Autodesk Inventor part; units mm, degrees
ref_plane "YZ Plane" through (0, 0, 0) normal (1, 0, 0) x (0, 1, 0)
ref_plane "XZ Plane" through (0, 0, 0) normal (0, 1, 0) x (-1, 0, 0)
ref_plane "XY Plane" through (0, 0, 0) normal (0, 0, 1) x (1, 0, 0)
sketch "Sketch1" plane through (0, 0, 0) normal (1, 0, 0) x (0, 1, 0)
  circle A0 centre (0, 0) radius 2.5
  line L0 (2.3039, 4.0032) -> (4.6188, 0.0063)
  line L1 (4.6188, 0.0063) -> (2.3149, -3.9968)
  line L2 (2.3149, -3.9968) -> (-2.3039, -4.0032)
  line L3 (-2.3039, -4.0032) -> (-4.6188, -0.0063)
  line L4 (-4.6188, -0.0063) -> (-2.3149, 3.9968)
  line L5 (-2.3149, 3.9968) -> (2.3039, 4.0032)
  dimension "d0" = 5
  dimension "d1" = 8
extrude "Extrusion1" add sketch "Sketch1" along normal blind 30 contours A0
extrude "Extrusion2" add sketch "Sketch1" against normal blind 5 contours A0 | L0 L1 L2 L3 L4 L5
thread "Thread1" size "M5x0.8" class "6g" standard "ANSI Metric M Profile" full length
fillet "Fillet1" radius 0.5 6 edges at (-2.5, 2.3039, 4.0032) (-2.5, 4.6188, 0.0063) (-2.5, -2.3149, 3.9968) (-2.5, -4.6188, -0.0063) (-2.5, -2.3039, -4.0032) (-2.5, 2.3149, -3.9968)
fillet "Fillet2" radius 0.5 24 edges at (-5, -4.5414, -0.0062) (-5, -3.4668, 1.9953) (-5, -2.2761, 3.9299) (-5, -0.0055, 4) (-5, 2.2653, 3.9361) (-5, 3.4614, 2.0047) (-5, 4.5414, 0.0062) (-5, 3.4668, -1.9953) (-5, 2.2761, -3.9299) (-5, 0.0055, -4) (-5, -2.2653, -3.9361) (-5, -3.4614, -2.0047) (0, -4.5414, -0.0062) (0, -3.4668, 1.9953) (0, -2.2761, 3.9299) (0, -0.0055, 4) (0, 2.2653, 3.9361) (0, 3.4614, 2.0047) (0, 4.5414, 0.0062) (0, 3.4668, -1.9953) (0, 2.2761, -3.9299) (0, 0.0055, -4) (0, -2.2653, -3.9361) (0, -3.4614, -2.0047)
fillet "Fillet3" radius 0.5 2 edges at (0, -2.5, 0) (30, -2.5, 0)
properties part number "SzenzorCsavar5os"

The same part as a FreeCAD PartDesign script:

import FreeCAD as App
import Part
import Sketcher

V = App.Vector
Q = App.Units.Quantity


def edges_at(feature, points):
    """Names of the edges that pass closest to the given points."""
    edges = feature.Shape.Edges
    near = lambda p: min(range(len(edges)), key=lambda i: edges[i].distToShape(Part.Vertex(*p))[0])
    return sorted({f"Edge{near(p) + 1}" for p in points})


def add_polygon(sketch, points):
    """Adds a closed chain of lines whose ends are joined by coincident constraints."""
    first, n = sketch.GeometryCount, len(points)
    for a, b in zip(points, points[1:] + points[:1]):
        sketch.addGeometry(Part.LineSegment(App.Vector(*a, 0), App.Vector(*b, 0)), False)
    for i in range(n):
        sketch.addConstraint(Sketcher.Constraint("Coincident", first + i, 2, first + (i + 1) % n, 1))

doc = App.newDocument("Part")
body = doc.addObject("PartDesign::Body", "Body")

# Sketch on YZ plane
sketch1 = doc.addObject("Sketcher::SketchObject", "Sketch")
body.addObject(sketch1)
sketch1.AttachmentSupport = (doc.YZ_Plane, [""])
sketch1.MapMode = "FlatFace"
sketch1.addGeometry(Part.Circle(V(0, 0, 0), V(0, 0, 1), 2.5), False)
sketch1.addConstraint([
    Sketcher.Constraint("Coincident", 0, 3, -1, 1),
    Sketcher.Constraint("Diameter", 0, Q("5 mm")),
])
pad1 = doc.addObject("PartDesign::Pad", "Pad")
body.addObject(pad1)
pad1.Profile = sketch1
pad1.Length = 30

# Sketch on YZ plane
sketch2 = doc.addObject("Sketcher::SketchObject", "Sketch001")
body.addObject(sketch2)
sketch2.AttachmentSupport = (doc.YZ_Plane, [""])
sketch2.MapMode = "FlatFace"
add_polygon(sketch2, [(4.6188, 0.0063), (2.3039, 4.0032), (-2.3149, 3.9968), (-4.6188, -0.0063), (-2.3039, -4.0032), (2.3149, -3.9968)])  # lines 0-5
sketch2.addConstraint([
    Sketcher.Constraint("Symmetric", 0, 2, 3, 2, -1, 1),
    Sketcher.Constraint("Symmetric", 1, 2, 4, 2, -1, 1),
    Sketcher.Constraint("Symmetric", 2, 2, 5, 2, -1, 1),
    Sketcher.Constraint("Equal", 0, 1),
    Sketcher.Constraint("Equal", 1, 2),
    Sketcher.Constraint("DistanceY", 3, 2, 1, 2, Q("8 mm")),
    Sketcher.Constraint("Angle", 1, Q("-179.9206 deg")),
    Sketcher.Constraint("DistanceX", -1, 1, 0, 2, Q("2.304 mm")),
    Sketcher.Constraint("DistanceX", 1, 2, -1, 1, Q("2.315 mm")),
])
pad2 = doc.addObject("PartDesign::Pad", "Pad001")
body.addObject(pad2)
pad2.Profile = sketch2
pad2.Length = 5
pad2.Reversed = True
doc.recompute()

fillet = doc.addObject("PartDesign::Fillet", "Fillet")
body.addObject(fillet)
fillet.Base = (pad2, edges_at(pad2, [
    (-2.5, 2.304, 4.003),
    (-2.5, 4.619, 0.006),
    (-2.5, -2.315, 3.997),
    (-2.5, -4.619, -0.006),
    (-2.5, -2.304, -4.003),
    (-2.5, 2.315, -3.997),
]))
fillet.Radius = 0.5
doc.recompute()

fillet2 = doc.addObject("PartDesign::Fillet", "Fillet001")
body.addObject(fillet2)
fillet2.Base = (fillet, edges_at(fillet, [
    (-5, -4.541, -0.006),
    (-5, -3.467, 1.995),
    (-5, -2.276, 3.93),
    (-5, -0.005, 4),
    (-5, 2.265, 3.936),
    (-5, 3.461, 2.005),
    (-5, 4.541, 0.006),
    (-5, 3.467, -1.995),
    (-5, 2.276, -3.93),
    (-5, 0.005, -4),
    (-5, -2.265, -3.936),
    (-5, -3.461, -2.005),
    (0, -4.541, -0.006),
    (0, -3.467, 1.995),
    (0, -2.276, 3.93),
    (0, -0.005, 4),
    (0, 2.265, 3.936),
    (0, 3.461, 2.005),
    (0, 4.541, 0.006),
    (0, 3.467, -1.995),
    (0, 2.276, -3.93),
    (0, 0.005, -4),
    (0, -2.265, -3.936),
    (0, -3.461, -2.005),
]))
fillet2.Radius = 0.5
doc.recompute()

fillet3 = doc.addObject("PartDesign::Fillet", "Fillet002")
body.addObject(fillet3)
fillet3.Base = (fillet2, edges_at(fillet2, [(0, -2.5, 0), (30, -2.5, 0)]))
fillet3.Radius = 0.5

doc.recompute()
